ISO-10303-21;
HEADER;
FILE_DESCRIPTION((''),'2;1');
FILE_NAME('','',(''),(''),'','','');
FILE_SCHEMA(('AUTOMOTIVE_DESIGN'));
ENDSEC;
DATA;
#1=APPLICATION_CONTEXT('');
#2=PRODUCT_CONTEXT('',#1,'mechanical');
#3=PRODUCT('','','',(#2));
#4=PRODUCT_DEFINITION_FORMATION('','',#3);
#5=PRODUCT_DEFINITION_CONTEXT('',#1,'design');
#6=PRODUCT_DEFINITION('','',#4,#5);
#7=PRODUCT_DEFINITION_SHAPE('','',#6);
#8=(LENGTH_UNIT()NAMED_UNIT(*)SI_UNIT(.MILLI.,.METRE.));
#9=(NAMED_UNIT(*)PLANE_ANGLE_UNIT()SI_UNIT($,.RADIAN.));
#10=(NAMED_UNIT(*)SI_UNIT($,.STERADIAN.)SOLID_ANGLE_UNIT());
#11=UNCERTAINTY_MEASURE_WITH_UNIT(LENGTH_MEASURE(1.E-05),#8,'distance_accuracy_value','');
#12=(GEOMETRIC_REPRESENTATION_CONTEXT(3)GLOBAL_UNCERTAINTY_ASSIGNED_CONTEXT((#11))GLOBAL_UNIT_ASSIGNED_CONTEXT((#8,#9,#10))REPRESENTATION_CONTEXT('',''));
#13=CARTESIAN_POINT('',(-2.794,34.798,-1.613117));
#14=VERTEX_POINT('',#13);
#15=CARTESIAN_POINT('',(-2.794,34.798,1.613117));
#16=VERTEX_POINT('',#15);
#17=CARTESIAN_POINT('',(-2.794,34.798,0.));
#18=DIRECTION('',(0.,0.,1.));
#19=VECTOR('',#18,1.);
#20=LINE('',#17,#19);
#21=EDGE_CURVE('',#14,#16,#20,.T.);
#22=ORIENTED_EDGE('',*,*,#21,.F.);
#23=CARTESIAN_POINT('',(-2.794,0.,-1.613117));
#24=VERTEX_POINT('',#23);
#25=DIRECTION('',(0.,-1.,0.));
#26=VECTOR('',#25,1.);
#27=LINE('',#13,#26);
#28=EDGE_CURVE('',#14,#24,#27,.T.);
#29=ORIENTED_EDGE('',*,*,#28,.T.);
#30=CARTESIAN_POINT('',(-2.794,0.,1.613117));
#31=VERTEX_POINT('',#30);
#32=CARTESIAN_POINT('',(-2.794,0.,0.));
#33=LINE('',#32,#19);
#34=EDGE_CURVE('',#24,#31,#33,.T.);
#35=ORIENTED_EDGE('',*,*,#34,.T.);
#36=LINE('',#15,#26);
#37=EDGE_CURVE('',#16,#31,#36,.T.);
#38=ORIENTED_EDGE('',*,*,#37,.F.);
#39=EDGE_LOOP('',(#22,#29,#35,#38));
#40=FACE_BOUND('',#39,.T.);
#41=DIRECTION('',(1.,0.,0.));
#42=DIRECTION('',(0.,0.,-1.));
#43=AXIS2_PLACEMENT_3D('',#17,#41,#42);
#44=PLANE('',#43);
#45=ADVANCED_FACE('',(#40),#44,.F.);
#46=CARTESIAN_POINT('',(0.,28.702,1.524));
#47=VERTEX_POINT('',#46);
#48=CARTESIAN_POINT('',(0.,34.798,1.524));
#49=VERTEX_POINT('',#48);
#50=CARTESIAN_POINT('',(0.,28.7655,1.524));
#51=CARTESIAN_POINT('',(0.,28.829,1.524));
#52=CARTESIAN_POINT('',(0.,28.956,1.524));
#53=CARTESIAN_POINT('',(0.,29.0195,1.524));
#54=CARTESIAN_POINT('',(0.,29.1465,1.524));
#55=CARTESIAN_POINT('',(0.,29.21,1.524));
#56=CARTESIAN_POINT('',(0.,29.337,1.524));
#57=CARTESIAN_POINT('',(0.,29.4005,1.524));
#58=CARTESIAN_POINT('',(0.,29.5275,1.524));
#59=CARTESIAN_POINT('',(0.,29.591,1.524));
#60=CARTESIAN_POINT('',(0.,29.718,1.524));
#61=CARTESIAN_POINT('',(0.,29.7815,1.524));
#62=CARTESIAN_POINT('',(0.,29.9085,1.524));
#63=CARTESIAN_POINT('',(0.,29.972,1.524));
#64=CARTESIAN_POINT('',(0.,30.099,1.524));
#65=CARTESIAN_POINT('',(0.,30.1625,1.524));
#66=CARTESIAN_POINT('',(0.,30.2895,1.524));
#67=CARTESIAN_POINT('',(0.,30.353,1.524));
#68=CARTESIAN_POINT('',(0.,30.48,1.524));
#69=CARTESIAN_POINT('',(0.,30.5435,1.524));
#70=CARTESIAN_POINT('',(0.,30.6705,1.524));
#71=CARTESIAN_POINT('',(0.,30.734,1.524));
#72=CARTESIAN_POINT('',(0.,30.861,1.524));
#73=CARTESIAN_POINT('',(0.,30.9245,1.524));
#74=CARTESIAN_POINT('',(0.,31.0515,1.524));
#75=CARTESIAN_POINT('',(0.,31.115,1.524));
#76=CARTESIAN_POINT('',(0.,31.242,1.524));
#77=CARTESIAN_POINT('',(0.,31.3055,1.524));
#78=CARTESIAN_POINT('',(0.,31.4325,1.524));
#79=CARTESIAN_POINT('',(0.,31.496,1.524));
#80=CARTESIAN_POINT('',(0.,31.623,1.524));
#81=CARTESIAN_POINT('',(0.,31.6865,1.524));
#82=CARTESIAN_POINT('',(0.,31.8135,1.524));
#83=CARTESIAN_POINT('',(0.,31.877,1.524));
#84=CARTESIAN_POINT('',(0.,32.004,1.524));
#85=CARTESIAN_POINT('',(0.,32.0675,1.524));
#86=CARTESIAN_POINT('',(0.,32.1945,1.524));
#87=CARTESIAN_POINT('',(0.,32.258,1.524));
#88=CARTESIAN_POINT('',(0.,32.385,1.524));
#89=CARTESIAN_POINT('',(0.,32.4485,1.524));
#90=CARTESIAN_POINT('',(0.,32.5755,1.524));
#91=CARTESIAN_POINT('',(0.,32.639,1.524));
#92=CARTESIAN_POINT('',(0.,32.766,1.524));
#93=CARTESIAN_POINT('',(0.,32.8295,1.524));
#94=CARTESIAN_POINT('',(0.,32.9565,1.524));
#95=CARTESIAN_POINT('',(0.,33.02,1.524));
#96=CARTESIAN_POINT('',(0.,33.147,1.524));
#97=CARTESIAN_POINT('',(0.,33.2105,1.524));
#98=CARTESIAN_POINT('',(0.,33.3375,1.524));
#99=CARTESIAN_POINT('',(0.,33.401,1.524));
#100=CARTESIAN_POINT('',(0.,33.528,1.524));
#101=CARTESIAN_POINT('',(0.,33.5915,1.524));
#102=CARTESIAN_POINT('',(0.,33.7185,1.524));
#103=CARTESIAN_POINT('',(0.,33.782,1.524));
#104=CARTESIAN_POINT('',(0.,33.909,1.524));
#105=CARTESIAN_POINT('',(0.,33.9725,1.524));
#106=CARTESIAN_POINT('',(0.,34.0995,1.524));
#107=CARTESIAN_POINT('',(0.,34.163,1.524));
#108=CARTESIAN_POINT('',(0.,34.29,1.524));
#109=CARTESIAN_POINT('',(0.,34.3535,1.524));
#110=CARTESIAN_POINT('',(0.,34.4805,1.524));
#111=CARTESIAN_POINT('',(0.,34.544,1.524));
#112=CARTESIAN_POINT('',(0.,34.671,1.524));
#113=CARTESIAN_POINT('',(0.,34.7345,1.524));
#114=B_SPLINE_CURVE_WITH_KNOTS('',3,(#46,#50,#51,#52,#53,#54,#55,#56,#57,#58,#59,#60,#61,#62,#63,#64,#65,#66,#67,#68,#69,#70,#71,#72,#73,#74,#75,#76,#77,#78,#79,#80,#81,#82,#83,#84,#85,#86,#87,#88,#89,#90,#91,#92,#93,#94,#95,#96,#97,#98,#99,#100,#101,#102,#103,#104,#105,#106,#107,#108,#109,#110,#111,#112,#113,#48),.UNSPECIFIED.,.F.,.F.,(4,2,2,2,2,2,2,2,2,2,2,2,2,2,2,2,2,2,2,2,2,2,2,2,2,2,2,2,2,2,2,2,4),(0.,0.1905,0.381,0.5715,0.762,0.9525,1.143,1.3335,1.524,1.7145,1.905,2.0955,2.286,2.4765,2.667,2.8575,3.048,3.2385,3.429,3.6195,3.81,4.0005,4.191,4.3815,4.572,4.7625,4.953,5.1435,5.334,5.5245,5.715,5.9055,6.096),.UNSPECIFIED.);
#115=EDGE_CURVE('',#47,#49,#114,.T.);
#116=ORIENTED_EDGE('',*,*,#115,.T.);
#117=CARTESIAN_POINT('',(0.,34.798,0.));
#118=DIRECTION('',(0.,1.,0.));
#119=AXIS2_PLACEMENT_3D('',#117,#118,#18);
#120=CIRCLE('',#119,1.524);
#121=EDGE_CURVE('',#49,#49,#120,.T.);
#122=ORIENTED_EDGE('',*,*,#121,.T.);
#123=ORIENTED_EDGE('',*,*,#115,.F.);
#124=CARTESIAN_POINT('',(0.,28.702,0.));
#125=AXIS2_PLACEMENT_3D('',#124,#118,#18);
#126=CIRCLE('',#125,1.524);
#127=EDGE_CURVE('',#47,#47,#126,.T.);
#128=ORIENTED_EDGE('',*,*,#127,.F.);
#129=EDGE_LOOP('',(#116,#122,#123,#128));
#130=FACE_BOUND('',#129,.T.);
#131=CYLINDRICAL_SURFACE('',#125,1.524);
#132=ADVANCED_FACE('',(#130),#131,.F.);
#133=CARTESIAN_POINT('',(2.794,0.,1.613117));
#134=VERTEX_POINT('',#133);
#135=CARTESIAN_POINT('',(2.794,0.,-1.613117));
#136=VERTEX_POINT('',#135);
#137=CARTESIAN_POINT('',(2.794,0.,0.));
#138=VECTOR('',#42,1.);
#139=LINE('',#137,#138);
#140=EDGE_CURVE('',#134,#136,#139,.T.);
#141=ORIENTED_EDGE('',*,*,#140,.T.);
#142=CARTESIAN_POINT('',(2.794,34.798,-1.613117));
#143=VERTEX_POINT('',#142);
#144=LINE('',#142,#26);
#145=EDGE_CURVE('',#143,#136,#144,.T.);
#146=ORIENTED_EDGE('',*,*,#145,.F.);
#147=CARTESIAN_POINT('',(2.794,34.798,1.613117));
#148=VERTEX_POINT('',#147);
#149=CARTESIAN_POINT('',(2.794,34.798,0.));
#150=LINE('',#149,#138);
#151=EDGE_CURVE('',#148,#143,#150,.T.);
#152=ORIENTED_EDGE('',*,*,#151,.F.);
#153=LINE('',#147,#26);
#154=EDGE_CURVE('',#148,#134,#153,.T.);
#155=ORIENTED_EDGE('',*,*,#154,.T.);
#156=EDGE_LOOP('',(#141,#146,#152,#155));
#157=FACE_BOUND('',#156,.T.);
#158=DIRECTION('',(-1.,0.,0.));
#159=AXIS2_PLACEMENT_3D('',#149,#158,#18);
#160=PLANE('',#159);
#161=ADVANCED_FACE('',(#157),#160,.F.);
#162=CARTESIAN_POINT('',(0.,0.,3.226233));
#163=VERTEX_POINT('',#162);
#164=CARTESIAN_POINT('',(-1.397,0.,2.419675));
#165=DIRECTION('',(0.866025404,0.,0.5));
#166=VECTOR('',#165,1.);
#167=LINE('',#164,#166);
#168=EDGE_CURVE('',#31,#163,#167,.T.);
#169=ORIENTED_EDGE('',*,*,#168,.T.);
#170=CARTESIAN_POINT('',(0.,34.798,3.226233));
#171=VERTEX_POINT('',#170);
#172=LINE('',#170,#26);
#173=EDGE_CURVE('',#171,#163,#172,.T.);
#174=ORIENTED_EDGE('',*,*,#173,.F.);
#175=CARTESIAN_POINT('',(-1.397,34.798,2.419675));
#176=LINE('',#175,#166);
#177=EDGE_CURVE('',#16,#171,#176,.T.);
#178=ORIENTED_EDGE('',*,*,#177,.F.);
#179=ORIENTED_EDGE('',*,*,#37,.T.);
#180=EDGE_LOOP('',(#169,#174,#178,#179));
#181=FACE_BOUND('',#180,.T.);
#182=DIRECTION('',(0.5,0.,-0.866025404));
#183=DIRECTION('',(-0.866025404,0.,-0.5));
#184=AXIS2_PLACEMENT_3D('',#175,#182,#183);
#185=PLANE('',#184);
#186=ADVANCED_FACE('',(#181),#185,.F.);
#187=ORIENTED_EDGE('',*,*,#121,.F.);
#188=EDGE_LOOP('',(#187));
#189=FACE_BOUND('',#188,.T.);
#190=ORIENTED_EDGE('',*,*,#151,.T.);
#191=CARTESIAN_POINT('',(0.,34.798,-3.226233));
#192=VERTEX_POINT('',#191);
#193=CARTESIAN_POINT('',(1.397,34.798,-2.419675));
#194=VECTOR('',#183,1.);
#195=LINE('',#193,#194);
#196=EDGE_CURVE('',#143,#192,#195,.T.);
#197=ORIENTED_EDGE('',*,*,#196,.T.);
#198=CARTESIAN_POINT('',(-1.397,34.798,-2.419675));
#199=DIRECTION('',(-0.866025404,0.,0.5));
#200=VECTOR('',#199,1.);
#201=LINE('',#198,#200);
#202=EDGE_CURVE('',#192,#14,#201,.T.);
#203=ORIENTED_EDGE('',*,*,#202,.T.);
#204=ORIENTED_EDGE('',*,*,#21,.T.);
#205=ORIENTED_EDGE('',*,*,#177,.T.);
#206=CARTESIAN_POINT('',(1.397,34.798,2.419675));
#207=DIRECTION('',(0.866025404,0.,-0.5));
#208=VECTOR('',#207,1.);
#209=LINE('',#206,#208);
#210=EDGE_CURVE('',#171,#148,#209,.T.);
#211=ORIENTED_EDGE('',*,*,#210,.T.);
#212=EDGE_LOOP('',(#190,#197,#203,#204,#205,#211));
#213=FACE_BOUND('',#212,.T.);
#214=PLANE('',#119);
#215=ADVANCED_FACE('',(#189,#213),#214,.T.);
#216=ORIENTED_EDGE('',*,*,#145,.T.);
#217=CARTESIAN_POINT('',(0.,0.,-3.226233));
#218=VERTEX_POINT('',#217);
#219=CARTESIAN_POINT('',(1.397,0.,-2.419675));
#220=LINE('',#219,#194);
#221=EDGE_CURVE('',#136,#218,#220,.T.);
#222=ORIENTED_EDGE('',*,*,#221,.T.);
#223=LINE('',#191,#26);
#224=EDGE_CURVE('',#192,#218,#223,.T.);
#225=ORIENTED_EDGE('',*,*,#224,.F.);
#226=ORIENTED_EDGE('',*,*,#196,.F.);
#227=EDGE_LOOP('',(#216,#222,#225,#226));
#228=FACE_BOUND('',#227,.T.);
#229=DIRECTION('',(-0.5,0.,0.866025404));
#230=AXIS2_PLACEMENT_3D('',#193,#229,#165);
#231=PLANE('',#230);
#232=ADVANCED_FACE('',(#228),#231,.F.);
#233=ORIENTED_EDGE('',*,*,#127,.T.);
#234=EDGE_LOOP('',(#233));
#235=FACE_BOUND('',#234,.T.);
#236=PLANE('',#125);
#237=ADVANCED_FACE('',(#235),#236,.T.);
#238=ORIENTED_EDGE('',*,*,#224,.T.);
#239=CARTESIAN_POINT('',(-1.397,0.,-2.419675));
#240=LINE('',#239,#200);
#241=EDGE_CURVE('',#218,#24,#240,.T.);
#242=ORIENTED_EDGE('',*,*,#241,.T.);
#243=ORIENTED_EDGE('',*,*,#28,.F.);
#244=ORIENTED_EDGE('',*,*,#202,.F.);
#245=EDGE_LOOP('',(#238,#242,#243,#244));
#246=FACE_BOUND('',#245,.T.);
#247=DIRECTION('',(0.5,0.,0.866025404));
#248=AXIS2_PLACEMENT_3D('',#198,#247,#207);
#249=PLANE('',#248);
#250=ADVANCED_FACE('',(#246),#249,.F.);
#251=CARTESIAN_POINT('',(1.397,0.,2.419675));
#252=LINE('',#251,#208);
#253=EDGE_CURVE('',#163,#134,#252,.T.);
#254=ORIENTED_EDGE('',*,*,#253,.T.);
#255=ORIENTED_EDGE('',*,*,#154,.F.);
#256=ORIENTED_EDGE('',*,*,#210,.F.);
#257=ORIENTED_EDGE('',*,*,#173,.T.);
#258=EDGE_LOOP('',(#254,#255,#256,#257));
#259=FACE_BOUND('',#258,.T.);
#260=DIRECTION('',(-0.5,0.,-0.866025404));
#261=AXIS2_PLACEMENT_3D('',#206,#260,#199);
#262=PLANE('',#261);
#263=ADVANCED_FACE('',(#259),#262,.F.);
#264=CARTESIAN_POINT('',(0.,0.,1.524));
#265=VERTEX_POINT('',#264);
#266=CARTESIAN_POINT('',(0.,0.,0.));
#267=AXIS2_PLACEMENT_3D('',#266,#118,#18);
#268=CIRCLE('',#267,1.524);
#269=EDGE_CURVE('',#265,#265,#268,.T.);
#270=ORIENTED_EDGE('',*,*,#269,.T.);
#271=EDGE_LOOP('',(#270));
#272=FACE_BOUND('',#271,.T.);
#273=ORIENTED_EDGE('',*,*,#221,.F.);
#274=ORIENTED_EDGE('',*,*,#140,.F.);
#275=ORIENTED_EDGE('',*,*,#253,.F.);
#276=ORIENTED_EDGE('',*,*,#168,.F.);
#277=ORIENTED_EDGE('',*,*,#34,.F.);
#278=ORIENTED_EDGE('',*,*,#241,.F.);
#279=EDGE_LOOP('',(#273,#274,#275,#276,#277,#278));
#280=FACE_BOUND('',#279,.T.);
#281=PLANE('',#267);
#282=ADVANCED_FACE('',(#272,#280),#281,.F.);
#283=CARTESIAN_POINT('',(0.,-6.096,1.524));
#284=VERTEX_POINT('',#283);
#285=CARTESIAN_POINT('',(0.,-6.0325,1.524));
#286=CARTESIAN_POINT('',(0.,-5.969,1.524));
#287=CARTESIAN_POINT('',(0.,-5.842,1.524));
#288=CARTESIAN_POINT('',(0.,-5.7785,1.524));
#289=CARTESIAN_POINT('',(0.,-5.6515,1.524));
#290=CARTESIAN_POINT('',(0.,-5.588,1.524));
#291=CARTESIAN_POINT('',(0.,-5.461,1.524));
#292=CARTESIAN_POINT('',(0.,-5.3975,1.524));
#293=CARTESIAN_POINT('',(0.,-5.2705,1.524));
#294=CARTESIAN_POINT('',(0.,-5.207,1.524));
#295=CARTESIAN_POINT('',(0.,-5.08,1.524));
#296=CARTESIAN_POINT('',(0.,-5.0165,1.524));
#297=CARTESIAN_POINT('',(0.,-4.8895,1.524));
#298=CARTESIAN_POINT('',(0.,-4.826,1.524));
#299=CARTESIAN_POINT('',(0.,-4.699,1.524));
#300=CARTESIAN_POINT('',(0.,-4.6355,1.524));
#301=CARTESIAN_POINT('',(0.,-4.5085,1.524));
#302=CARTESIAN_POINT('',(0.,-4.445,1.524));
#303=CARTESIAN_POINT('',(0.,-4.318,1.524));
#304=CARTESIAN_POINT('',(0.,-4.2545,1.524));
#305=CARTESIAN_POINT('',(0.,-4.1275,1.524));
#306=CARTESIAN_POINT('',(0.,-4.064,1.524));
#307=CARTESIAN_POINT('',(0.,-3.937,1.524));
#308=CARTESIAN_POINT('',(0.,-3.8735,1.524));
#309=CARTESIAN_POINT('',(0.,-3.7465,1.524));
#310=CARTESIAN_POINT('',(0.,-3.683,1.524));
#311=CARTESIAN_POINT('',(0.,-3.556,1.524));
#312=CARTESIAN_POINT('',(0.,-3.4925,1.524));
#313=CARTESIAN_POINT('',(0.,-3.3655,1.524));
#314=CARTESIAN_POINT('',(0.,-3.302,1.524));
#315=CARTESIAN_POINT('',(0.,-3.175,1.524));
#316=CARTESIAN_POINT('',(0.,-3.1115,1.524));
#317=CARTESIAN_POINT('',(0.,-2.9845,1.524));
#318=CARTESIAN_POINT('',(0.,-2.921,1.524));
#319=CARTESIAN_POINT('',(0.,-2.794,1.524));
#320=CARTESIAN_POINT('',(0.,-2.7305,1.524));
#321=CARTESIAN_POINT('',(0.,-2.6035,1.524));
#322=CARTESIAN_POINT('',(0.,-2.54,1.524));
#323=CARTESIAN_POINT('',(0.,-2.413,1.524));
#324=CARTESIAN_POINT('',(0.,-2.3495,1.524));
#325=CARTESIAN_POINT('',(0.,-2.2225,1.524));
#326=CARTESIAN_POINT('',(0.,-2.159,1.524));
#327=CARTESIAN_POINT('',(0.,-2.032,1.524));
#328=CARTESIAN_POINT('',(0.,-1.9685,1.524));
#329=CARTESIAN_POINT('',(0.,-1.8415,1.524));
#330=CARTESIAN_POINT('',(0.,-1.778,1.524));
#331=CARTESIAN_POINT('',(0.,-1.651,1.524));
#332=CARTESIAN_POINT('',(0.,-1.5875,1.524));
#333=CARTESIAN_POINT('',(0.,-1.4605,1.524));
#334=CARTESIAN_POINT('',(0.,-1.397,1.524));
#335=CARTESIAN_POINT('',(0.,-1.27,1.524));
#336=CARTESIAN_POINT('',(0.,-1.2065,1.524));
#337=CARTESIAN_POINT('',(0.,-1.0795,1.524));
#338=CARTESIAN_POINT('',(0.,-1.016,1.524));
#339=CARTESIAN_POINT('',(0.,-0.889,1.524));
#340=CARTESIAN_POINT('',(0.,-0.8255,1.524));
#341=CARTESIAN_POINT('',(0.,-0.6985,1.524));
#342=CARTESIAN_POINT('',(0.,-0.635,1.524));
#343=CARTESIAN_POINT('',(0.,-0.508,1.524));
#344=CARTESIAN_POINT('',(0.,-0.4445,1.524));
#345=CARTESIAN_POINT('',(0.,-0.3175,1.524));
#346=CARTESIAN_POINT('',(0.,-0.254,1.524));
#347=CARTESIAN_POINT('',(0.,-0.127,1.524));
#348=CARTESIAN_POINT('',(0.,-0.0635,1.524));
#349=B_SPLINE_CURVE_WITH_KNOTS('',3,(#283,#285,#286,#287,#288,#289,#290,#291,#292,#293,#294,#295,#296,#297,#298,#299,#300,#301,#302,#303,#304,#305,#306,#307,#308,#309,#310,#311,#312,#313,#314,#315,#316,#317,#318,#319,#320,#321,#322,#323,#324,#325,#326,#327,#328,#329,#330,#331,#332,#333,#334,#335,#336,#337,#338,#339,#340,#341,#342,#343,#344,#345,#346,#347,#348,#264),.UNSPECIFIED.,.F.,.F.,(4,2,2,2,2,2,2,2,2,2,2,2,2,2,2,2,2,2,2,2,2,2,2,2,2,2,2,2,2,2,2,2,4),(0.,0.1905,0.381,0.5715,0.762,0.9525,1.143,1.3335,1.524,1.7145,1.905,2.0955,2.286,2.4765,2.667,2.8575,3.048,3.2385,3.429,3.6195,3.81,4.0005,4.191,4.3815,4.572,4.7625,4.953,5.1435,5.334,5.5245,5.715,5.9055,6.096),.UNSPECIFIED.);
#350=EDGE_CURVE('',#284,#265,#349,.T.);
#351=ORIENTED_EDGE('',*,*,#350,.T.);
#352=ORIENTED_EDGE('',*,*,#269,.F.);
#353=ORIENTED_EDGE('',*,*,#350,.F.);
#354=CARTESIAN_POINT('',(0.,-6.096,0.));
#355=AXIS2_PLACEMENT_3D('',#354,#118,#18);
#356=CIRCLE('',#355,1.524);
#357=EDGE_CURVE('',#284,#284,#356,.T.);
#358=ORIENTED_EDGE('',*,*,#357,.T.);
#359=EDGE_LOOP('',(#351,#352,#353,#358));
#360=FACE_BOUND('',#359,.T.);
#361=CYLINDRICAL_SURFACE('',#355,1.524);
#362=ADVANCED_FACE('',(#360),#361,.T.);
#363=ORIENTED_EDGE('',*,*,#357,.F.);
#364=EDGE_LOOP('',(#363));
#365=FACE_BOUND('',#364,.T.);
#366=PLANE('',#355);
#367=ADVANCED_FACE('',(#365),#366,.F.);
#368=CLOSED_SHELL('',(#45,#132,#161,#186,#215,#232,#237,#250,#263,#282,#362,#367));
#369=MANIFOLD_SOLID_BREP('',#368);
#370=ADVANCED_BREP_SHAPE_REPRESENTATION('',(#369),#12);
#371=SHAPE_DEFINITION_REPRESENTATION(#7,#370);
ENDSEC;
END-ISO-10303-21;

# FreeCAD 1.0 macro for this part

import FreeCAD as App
import Part
import Sketcher

V = App.Vector
Q = App.Units.Quantity

doc = App.newDocument("Part")
body = doc.addObject("PartDesign::Body", "Body")

sketch1 = doc.addObject("Sketcher::SketchObject", "Sketch")
body.addObject(sketch1)
sketch1.AttachmentSupport = (doc.XZ_Plane, [""])
sketch1.MapMode = "FlatFace"
sketch1.addGeometry(Part.LineSegment(V(-2.794, 1.613117, 0), V(0, 3.226233, 0)), False)
sketch1.addGeometry(Part.LineSegment(V(0, 3.226233, 0), V(2.794, 1.613117, 0)), False)
sketch1.addGeometry(Part.LineSegment(V(2.794, 1.613117, 0), V(2.794, -1.613117, 0)), False)
sketch1.addGeometry(Part.LineSegment(V(2.794, -1.613117, 0), V(0, -3.226233, 0)), False)
sketch1.addGeometry(Part.LineSegment(V(0, -3.226233, 0), V(-2.794, -1.613117, 0)), False)
sketch1.addGeometry(Part.LineSegment(V(-2.794, -1.613117, 0), V(-2.794, 1.613117, 0)), False)
sketch1.addConstraint(Sketcher.Constraint("Coincident", 0, 2, 1, 1))
sketch1.addConstraint(Sketcher.Constraint("Coincident", 1, 2, 2, 1))
sketch1.addConstraint(Sketcher.Constraint("Coincident", 2, 2, 3, 1))
sketch1.addConstraint(Sketcher.Constraint("Coincident", 3, 2, 4, 1))
sketch1.addConstraint(Sketcher.Constraint("Coincident", 4, 2, 5, 1))
sketch1.addConstraint(Sketcher.Constraint("Coincident", 5, 2, 0, 1))
sketch1.addConstraint(Sketcher.Constraint("Vertical", 2))
sketch1.addConstraint(Sketcher.Constraint("Vertical", 5))
sketch1.addConstraint(Sketcher.Constraint("Symmetric", 0, 2, 3, 2, -1, 1))
sketch1.addConstraint(Sketcher.Constraint("Symmetric", 1, 2, 4, 2, -1, 1))
sketch1.addConstraint(Sketcher.Constraint("PointOnObject", 0, 2, -2))
sketch1.addConstraint(Sketcher.Constraint("Parallel", 0, 3))
sketch1.addConstraint(Sketcher.Constraint("Horizontal", 2, 2, 4, 2))
sketch1.addConstraint(Sketcher.Constraint("Angle", 0, Q("30 deg")))
sketch1.addConstraint(Sketcher.Constraint("DistanceX", -1, 1, 1, 2, Q("0.11 in")))
sketch1.addConstraint(Sketcher.Constraint("DistanceY", 2, 2, 2, 1, Q("3.226233 mm")))
pad1 = doc.addObject("PartDesign::Pad", "Pad")
body.addObject(pad1)
pad1.Profile = sketch1
pad1.Length = Q("1.37 in")
pad1.Reversed = True

sketch2 = doc.addObject("Sketcher::SketchObject", "Sketch001")
body.addObject(sketch2)
sketch2.AttachmentSupport = (doc.XZ_Plane, [""])
sketch2.MapMode = "FlatFace"
sketch2.addGeometry(Part.Circle(V(0, 0, 0), V(0, 0, 1), 1.524), False)
sketch2.addConstraint(Sketcher.Constraint("Coincident", 0, 3, -1, 1))
sketch2.addConstraint(Sketcher.Constraint("Diameter", 0, Q("0.12 in")))
pad2 = doc.addObject("PartDesign::Pad", "Pad001")
body.addObject(pad2)
pad2.Profile = sketch2
pad2.Length = Q("0.24 in")

sketch3 = doc.addObject("Sketcher::SketchObject", "Sketch002")
body.addObject(sketch3)
sketch3.AttachmentSupport = (doc.XZ_Plane, [""])
sketch3.MapMode = "FlatFace"
sketch3.AttachmentOffset = App.Placement(V(0, 0, -1.37 * 25.4), App.Rotation())
sketch3.addGeometry(Part.Circle(V(0, 0, 0), V(0, 0, 1), 1.524), False)
sketch3.addConstraint(Sketcher.Constraint("Coincident", 0, 3, -1, 1))
sketch3.addConstraint(Sketcher.Constraint("Diameter", 0, Q("0.12 in")))
pocket1 = doc.addObject("PartDesign::Pocket", "Pocket")
body.addObject(pocket1)
pocket1.Profile = sketch3
pocket1.Length = Q("0.24 in")
pocket1.Reversed = True

doc.recompute()
